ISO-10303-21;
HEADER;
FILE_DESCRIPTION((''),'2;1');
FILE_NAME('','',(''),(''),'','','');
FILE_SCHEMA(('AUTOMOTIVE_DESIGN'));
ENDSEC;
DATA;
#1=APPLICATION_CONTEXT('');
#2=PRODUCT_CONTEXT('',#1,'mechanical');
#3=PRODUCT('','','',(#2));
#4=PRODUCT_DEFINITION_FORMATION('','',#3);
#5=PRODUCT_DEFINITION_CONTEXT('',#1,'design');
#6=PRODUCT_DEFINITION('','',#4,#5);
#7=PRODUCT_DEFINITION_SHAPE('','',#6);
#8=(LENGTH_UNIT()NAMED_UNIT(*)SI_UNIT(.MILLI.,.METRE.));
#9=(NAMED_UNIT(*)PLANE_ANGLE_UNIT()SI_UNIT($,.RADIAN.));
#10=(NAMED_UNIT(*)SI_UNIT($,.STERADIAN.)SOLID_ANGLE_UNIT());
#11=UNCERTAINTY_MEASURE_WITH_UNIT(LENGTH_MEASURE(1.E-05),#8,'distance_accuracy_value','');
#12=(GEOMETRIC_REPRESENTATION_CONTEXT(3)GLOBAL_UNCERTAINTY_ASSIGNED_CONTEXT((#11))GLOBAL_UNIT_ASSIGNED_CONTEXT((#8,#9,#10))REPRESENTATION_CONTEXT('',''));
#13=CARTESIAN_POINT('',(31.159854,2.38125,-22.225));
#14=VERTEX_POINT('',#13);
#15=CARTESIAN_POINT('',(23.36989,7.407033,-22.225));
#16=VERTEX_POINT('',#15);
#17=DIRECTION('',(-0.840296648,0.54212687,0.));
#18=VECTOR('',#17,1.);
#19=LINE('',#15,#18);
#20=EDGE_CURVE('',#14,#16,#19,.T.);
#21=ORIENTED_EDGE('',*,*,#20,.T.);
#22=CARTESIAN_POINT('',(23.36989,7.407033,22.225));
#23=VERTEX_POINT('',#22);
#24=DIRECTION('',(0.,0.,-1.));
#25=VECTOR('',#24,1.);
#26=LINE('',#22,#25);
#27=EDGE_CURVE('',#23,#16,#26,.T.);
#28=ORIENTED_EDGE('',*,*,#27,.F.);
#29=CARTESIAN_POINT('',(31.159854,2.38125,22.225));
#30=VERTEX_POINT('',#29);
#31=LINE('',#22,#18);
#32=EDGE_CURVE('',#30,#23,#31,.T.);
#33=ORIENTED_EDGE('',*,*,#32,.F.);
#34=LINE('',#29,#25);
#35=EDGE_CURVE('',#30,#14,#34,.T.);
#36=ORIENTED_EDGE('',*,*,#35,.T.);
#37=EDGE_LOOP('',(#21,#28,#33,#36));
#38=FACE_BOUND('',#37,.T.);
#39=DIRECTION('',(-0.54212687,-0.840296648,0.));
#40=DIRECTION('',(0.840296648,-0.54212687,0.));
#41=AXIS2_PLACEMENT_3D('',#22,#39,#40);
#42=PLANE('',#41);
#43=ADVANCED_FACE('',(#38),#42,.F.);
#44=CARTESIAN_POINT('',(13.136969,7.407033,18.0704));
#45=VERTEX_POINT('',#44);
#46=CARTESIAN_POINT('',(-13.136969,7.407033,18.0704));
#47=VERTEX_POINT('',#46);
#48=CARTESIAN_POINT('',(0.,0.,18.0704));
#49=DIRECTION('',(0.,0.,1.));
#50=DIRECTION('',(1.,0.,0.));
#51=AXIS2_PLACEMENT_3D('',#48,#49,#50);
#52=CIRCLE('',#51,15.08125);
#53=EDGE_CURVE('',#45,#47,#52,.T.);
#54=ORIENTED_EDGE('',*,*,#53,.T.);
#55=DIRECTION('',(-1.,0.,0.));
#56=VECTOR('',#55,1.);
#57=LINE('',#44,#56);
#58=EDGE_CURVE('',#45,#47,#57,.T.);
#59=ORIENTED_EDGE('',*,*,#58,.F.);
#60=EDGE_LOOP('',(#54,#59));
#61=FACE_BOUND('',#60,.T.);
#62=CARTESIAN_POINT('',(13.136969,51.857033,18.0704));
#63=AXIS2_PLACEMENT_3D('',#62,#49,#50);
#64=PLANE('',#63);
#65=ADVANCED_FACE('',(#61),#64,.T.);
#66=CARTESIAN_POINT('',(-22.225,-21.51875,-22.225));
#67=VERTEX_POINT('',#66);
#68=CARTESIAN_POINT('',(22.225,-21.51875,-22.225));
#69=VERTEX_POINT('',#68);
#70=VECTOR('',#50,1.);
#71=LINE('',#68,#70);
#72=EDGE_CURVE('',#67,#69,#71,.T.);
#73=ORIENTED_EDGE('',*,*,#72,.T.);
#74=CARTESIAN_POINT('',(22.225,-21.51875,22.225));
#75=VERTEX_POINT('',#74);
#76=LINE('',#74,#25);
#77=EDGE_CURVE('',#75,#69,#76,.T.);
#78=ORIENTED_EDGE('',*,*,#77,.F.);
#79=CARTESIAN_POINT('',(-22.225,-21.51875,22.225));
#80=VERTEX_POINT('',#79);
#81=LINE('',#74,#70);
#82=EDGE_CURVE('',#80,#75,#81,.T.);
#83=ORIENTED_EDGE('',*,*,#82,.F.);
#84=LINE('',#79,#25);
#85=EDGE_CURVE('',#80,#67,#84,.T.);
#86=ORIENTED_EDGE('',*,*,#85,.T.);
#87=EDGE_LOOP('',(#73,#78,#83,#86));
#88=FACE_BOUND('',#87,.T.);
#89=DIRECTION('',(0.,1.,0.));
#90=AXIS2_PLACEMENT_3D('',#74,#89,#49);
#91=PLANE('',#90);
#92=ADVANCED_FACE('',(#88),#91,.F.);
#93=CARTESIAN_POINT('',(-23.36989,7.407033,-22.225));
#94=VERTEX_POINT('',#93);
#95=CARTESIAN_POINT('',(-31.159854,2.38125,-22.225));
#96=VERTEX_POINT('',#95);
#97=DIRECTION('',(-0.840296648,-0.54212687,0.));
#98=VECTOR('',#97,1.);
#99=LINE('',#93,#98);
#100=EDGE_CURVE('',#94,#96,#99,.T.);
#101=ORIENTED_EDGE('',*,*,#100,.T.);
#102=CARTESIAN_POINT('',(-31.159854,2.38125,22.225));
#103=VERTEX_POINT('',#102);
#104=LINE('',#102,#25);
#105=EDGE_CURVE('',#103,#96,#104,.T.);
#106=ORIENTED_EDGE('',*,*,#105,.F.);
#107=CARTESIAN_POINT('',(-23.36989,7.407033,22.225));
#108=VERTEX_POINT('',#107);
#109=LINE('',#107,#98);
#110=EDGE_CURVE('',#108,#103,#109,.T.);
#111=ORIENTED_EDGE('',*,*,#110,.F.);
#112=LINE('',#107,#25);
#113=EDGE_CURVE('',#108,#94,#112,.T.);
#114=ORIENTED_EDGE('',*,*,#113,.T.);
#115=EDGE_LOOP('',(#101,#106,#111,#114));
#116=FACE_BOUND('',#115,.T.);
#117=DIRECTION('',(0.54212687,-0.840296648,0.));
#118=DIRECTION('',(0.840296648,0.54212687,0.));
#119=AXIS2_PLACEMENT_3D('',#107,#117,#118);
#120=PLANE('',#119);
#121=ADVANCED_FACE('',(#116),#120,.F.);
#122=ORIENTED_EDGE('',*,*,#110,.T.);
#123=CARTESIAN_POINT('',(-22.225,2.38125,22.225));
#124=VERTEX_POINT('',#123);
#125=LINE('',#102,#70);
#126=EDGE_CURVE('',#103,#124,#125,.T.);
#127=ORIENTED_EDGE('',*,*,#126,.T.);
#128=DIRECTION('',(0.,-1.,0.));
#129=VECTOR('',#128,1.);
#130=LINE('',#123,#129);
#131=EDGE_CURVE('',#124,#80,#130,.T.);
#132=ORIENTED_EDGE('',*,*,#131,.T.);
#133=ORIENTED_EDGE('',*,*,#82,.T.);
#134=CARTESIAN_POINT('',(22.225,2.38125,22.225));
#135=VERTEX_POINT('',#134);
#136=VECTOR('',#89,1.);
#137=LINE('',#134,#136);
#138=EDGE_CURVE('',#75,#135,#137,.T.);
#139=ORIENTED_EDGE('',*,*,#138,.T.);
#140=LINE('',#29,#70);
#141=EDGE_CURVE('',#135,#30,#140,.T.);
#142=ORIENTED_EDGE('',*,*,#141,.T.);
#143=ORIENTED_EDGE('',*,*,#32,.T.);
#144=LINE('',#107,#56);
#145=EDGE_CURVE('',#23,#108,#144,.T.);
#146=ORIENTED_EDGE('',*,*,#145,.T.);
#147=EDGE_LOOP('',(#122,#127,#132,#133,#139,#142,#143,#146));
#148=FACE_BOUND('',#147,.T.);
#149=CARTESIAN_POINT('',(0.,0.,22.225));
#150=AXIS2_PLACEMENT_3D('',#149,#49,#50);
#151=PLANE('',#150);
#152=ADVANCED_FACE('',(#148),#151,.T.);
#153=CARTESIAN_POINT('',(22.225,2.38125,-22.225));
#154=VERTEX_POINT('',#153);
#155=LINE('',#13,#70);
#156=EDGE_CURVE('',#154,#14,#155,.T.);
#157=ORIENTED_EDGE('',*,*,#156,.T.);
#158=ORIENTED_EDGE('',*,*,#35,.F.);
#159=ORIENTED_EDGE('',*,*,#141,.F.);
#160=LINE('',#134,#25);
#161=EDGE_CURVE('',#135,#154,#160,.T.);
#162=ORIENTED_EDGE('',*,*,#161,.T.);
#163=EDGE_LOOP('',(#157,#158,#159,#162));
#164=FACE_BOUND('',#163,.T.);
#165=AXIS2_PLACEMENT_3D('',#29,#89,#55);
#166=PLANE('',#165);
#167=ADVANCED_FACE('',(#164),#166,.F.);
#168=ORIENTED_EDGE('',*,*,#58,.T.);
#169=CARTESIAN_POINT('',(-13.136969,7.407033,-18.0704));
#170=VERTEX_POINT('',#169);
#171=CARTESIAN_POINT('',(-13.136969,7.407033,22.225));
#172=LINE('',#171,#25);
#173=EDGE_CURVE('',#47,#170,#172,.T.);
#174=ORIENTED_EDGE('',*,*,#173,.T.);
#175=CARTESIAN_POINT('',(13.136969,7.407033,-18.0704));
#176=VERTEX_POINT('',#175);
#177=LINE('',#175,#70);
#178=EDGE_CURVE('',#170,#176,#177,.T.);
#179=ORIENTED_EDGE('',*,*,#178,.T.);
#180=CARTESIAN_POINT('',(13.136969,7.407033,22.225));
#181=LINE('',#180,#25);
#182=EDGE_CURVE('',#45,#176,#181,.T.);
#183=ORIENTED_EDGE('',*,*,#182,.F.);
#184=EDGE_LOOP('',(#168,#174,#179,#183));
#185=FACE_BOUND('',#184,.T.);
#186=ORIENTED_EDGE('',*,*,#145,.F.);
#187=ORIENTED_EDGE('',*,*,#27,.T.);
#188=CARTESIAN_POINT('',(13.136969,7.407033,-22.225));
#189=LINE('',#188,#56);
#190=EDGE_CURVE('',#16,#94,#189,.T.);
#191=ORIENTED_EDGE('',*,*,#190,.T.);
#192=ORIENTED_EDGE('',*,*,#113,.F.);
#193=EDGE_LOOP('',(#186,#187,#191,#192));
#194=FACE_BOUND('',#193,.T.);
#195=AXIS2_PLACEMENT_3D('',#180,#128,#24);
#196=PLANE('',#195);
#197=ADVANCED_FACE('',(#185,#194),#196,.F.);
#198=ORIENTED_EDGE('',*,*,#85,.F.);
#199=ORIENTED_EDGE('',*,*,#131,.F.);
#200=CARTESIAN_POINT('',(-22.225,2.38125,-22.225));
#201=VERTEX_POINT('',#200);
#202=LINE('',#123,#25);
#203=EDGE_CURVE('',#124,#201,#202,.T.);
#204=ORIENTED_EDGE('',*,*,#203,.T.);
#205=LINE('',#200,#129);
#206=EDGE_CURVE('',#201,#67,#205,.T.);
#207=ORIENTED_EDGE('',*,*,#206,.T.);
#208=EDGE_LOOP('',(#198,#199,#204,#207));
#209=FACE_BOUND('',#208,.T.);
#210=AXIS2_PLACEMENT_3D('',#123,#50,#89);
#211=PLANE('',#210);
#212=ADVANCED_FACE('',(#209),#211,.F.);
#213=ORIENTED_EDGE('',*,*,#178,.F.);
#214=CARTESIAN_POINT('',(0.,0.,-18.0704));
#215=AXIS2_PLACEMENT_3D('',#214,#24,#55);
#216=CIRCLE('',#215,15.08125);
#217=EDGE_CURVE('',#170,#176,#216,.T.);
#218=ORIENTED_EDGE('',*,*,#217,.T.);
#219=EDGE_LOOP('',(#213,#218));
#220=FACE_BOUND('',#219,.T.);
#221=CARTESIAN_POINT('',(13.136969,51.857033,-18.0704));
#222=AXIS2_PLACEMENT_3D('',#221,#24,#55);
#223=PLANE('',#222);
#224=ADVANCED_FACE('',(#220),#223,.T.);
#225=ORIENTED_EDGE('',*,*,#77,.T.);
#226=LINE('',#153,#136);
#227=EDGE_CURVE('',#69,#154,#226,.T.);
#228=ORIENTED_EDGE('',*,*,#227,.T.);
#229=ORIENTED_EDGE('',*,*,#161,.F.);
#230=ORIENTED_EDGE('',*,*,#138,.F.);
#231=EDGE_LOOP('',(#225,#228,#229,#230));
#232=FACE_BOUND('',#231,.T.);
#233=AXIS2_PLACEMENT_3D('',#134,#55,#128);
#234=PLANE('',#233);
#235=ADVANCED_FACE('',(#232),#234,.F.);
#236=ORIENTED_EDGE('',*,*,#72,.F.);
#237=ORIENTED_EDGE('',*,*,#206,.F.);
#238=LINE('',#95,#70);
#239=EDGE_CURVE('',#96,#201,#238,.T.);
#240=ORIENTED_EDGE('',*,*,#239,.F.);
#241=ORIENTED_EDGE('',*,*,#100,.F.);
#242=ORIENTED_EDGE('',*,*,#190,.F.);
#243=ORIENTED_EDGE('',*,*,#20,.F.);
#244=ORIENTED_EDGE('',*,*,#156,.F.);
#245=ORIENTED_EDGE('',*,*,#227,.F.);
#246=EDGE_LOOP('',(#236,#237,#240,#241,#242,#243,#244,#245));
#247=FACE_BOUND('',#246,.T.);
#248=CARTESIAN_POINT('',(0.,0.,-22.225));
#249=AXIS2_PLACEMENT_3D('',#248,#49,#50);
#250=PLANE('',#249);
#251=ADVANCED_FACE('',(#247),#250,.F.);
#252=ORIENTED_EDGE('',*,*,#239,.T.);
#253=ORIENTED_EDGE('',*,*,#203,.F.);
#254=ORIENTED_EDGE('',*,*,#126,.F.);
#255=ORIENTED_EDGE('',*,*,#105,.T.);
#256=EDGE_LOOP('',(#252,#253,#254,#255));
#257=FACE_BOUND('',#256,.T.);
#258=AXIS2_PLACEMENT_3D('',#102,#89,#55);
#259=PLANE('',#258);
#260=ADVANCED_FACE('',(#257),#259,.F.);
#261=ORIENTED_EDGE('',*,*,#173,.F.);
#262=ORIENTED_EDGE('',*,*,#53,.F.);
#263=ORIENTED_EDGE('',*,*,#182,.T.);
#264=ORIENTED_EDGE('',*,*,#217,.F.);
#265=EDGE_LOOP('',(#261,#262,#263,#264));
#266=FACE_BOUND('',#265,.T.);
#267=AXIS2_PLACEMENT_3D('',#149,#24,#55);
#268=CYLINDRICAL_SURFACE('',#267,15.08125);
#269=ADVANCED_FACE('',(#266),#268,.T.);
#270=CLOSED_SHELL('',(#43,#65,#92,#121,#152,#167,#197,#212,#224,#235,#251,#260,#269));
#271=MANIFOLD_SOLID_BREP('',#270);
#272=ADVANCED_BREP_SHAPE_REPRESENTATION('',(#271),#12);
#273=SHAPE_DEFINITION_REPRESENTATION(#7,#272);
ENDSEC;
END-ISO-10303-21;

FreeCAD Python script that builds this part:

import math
import FreeCAD as App
import Part
import Sketcher
from FreeCAD import Vector
Q = App.Units.Quantity


def add_polygon(sketch, points):
    """Adds a closed chain of lines whose ends are joined by coincident constraints."""
    first, n = sketch.GeometryCount, len(points)
    for a, b in zip(points, points[1:] + points[:1]):
        sketch.addGeometry(Part.LineSegment(App.Vector(*a, 0), App.Vector(*b, 0)), False)
    for i in range(n):
        sketch.addConstraint(Sketcher.Constraint("Coincident", first + i, 2, first + (i + 1) % n, 1))

doc = App.newDocument("Part")
body = doc.addObject("PartDesign::Body", "Body")

sketch1 = doc.addObject("Sketcher::SketchObject", "Sketch")
body.addObject(sketch1)
sketch1.AttachmentSupport = (doc.XY_Plane, [""])
sketch1.MapMode = "FlatFace"
sketch1.addGeometry([
    Part.LineSegment(Vector(-13, 7, 0), Vector(-23, 7, 0)),
    Part.LineSegment(Vector(-23, 7, 0), Vector(-31, 2, 0)),
    Part.LineSegment(Vector(-31, 2, 0), Vector(-22, 2, 0)),
    Part.LineSegment(Vector(-22, 2, 0), Vector(-22, -22, 0)),
    Part.LineSegment(Vector(-22, -22, 0), Vector(22, -22, 0)),
    Part.LineSegment(Vector(22, -22, 0), Vector(22, 2, 0)),
    Part.LineSegment(Vector(22, 2, 0), Vector(31, 2, 0)),
    Part.LineSegment(Vector(31, 2, 0), Vector(23, 7, 0)),
    Part.LineSegment(Vector(23, 7, 0), Vector(13, 7, 0)),
    Part.ArcOfCircle(Part.Circle(Vector(0, 0, 0), Vector(0, 0, 1), 15), math.radians(29), math.radians(151)),
], False)
sketch1.addConstraint([
    Sketcher.Constraint("Coincident", 0, 2, 1, 1),
    Sketcher.Constraint("Coincident", 1, 2, 2, 1),
    Sketcher.Constraint("Coincident", 2, 2, 3, 1),
    Sketcher.Constraint("Coincident", 3, 2, 4, 1),
    Sketcher.Constraint("Coincident", 4, 2, 5, 1),
    Sketcher.Constraint("Coincident", 5, 2, 6, 1),
    Sketcher.Constraint("Coincident", 6, 2, 7, 1),
    Sketcher.Constraint("Coincident", 7, 2, 8, 1),
    Sketcher.Constraint("Coincident", 8, 2, 9, 1),
    Sketcher.Constraint("Coincident", 9, 2, 0, 1),
    Sketcher.Constraint("Horizontal", 0),
    Sketcher.Constraint("Horizontal", 2),
    Sketcher.Constraint("Vertical", 3),
    Sketcher.Constraint("Horizontal", 4),
    Sketcher.Constraint("Vertical", 5),
    Sketcher.Constraint("Horizontal", 6),
    Sketcher.Constraint("Horizontal", 8),
    Sketcher.Constraint("Coincident", 9, 3, -1, 1),
    Sketcher.Constraint("Symmetric", 2, 2, 5, 2, -2),
    Sketcher.Constraint("Symmetric", 0, 2, 7, 2, -2),
    Sketcher.Constraint("Equal", 2, 6),
    Sketcher.Constraint("Radius", 9, Q("0.59375 in")),
    Sketcher.Constraint("DistanceX", 4, 1, 4, 2, Q("1.75 in")),
    Sketcher.Constraint("DistanceY", -1, 1, 1, 2, Q("0.09375 in")),
    Sketcher.Constraint("DistanceY", 3, 2, 3, 1, 23.9),
    Sketcher.Constraint("DistanceX", 0, 2, 0, 1, 10.232921),
    Sketcher.Constraint("DistanceX", 2, 1, 2, 2, 8.934854),
    Sketcher.Constraint("DistanceX", 0, 2, -1, 1, 23.36989),
])
pad1 = doc.addObject("PartDesign::Pad", "Pad")
body.addObject(pad1)
pad1.Profile = sketch1
pad1.Length = Q("1.75 in")
pad1.Midplane = True

sketch2 = doc.addObject("Sketcher::SketchObject", "Sketch001")
body.addObject(sketch2)
sketch2.AttachmentSupport = (doc.XZ_Plane, [""])
sketch2.MapMode = "FlatFace"
sketch2.AttachmentOffset = App.Placement(Vector(0, 0, -7.407033), App.Rotation())
add_polygon(sketch2, [(-13.1, -22.2), (-13.1, -18.1), (13.1, -18.1), (13.1, -22.2)])
add_polygon(sketch2, [(-13.1, 18.1), (-13.1, 22.2), (13.1, 22.2), (13.1, 18.1)])
sketch2.addConstraint([
    Sketcher.Constraint("Vertical", 0),
    Sketcher.Constraint("Horizontal", 1),
    Sketcher.Constraint("Vertical", 2),
    Sketcher.Constraint("Horizontal", 3),
    Sketcher.Constraint("Vertical", 4),
    Sketcher.Constraint("Horizontal", 5),
    Sketcher.Constraint("Vertical", 6),
    Sketcher.Constraint("Horizontal", 7),
    Sketcher.Constraint("Symmetric", 2, 2, 4, 2, -1, 1),
    Sketcher.Constraint("Symmetric", 0, 2, 6, 2, -1, 1),
    Sketcher.Constraint("Vertical", 3, 2, 4, 2),
    Sketcher.Constraint("DistanceY", 3, 2, 4, 2, Q("1.75 in")),
    Sketcher.Constraint("DistanceY", 0, 1, 0, 2, 4.1546),
    Sketcher.Constraint("DistanceX", 1, 1, 1, 2, 26.273939),
])
pocket1 = doc.addObject("PartDesign::Pocket", "Pocket")
body.addObject(pocket1)
pocket1.Profile = sketch2
pocket1.Length = Q("1.75 in")

doc.recompute()
